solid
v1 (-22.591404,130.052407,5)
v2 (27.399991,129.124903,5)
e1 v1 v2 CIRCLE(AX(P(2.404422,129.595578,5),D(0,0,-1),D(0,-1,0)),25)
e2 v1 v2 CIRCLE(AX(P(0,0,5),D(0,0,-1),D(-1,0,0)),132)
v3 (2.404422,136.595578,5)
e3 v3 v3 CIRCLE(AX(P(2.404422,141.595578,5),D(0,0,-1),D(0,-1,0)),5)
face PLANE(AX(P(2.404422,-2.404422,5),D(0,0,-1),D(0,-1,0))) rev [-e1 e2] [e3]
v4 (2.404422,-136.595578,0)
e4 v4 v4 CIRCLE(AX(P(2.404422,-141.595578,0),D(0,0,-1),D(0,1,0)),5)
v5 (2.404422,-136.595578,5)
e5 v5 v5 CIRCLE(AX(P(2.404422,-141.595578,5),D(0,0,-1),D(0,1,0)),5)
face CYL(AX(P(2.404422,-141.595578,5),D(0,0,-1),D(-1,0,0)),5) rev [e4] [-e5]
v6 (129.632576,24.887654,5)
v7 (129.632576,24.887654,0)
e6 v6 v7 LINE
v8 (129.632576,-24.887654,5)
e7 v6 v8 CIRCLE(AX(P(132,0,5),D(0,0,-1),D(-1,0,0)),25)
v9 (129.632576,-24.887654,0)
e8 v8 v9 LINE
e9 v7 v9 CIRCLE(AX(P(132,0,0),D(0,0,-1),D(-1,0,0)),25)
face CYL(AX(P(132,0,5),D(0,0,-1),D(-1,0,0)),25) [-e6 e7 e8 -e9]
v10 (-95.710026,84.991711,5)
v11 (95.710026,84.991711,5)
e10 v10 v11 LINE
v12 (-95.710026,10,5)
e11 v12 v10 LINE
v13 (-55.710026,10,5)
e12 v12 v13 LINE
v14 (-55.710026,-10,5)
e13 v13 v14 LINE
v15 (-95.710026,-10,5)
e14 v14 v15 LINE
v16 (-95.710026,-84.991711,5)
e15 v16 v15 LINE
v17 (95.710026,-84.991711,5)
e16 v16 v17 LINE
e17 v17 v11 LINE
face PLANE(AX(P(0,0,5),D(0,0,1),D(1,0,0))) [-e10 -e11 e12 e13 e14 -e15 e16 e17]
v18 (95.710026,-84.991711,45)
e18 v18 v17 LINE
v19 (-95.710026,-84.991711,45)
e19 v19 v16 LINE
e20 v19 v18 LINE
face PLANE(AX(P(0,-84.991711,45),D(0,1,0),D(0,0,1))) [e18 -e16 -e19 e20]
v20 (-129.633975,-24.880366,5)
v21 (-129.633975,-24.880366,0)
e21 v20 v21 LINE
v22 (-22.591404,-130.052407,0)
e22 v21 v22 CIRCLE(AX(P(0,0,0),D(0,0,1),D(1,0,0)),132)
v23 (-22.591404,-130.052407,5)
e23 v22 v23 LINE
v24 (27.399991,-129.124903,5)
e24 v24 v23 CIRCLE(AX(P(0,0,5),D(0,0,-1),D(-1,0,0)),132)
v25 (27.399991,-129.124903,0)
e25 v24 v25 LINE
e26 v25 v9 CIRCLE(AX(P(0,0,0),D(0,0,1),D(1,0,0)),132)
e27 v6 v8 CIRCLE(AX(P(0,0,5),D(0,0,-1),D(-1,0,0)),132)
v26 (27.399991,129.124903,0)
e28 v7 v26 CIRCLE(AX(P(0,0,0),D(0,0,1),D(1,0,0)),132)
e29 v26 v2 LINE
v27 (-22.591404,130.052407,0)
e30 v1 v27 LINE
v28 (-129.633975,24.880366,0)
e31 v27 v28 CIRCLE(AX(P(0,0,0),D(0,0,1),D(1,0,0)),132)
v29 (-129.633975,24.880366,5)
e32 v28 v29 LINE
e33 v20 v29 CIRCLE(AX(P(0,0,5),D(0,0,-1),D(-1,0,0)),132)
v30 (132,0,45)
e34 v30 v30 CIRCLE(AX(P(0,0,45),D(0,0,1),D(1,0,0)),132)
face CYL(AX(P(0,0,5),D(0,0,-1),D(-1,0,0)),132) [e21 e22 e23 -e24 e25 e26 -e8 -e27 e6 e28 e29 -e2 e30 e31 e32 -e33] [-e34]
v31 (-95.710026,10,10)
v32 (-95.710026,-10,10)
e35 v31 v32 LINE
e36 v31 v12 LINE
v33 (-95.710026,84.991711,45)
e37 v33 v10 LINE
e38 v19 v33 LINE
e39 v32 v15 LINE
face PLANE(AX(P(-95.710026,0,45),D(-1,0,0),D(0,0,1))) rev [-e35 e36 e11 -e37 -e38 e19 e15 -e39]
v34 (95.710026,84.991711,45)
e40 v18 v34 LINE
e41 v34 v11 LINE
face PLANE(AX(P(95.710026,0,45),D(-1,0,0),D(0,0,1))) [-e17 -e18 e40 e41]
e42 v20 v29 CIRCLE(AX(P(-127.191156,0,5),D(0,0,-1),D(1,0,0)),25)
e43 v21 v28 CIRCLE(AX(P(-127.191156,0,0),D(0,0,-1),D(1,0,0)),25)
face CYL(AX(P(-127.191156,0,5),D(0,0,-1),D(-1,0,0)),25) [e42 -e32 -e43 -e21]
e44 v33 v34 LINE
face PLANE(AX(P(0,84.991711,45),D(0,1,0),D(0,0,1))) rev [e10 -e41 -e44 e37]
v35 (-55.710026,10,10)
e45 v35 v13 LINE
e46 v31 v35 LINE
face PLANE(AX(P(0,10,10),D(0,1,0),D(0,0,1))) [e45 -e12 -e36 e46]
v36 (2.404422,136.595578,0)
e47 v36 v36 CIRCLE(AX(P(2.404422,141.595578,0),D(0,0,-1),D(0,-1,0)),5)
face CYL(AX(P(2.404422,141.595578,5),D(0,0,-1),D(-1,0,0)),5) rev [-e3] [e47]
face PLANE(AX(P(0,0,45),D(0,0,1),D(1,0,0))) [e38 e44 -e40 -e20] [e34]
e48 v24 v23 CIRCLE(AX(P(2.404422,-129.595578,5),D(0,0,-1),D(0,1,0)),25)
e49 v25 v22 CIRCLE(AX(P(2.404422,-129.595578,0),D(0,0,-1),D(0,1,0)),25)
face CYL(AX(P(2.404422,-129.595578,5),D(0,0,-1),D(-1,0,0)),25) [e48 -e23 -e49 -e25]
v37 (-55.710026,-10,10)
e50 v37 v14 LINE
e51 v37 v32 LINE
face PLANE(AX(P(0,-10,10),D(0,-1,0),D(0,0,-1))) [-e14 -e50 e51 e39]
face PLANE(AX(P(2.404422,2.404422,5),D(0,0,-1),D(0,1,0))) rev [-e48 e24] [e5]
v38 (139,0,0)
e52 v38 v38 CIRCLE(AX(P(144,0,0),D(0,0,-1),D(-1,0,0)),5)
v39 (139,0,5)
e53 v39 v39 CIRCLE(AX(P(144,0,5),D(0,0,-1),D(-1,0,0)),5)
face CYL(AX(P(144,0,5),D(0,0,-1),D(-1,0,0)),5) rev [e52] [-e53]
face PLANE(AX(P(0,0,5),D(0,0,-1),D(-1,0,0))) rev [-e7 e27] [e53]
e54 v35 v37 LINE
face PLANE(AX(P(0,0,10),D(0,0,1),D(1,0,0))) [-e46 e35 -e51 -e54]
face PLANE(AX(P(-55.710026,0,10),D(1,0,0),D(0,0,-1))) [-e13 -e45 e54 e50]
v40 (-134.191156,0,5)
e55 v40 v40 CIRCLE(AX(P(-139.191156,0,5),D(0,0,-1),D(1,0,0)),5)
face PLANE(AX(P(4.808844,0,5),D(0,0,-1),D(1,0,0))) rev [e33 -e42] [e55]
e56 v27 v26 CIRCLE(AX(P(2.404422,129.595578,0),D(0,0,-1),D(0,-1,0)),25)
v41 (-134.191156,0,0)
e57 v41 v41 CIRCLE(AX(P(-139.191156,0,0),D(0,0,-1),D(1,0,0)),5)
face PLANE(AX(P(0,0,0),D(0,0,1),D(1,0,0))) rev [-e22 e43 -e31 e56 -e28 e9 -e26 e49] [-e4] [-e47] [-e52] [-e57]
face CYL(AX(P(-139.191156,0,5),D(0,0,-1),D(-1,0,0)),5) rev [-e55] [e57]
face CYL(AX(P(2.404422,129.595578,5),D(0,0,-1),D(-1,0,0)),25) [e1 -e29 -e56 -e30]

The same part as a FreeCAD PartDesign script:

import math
import FreeCAD as App
import Part
import Sketcher
from FreeCAD import Vector
Q = App.Units.Quantity

doc = App.newDocument("Part")
body = doc.addObject("PartDesign::Body", "Body")

# Sketch on XY plane
sketch1 = body.newObject("Sketcher::SketchObject", "Sketch")
sketch1.AttachmentSupport = (doc.getObject("XY_Plane"), [""])
sketch1.MapMode = "FlatFace"
sketch1.addGeometry(Part.Circle(Vector(0, 0, 0), Vector(0, 0, 1), 132), False)
sketch1.addConstraint([
    Sketcher.Constraint("Coincident", 0, 3, -1, 1),
    Sketcher.Constraint("Diameter", 0, Q("264 mm")),
])
pad1 = body.newObject("PartDesign::Pad", "Pad")
pad1.Profile = sketch1
pad1.Length = 5

# Sketch on XY plane
sketch2 = body.newObject("Sketcher::SketchObject", "Sketch001")
sketch2.AttachmentSupport = (doc.getObject("XY_Plane"), [""])
sketch2.MapMode = "FlatFace"
sketch2.AttachmentOffset = App.Placement(Vector(0, 0, 5), App.Rotation())
sketch2.addGeometry([
    Part.Circle(Vector(0, 0, 0), Vector(0, 0, 1), 132),
    Part.Circle(Vector(0, 0, 0), Vector(0, 0, 1), 128),
], False)
sketch2.addConstraint([
    Sketcher.Constraint("Coincident", 0, 3, -1, 1),
    Sketcher.Constraint("Coincident", 1, 3, -1, 1),
    Sketcher.Constraint("Diameter", 0, Q("264 mm")),
    Sketcher.Constraint("Diameter", 1, Q("256 mm")),
])
pad2 = body.newObject("PartDesign::Pad", "Pad001")
pad2.Profile = sketch2
pad2.Length = 40

# Sketch on XY plane
sketch3 = body.newObject("Sketcher::SketchObject", "Sketch002")
sketch3.AttachmentSupport = (doc.getObject("XY_Plane"), [""])
sketch3.MapMode = "FlatFace"
sketch3.AttachmentOffset = App.Placement(Vector(0, 0, 5), App.Rotation())
sketch3.addGeometry([
    Part.ArcOfCircle(Part.Circle(Vector(0, 0, 0), Vector(0, 0, 1), 128), math.radians(41.605481), math.radians(138.394519)),  # 0
    Part.LineSegment(Vector(-95.710026, 84.991711, 0), Vector(95.710026, 84.991711, 0)),  # 1
    Part.LineSegment(Vector(95.710026, 84.991711, 0), Vector(95.710026, -84.991711, 0)),  # 2
    Part.ArcOfCircle(Part.Circle(Vector(0, 0, 0), Vector(0, 0, 1), 128), math.radians(-41.605481), math.radians(0)),  # 3
    Part.ArcOfCircle(Part.Circle(Vector(0, 0, 0), Vector(0, 0, 1), 128), math.radians(0), math.radians(41.605481)),  # 4
    Part.LineSegment(Vector(95.710026, -84.991711, 0), Vector(-95.710026, -84.991711, 0)),  # 5
    Part.ArcOfCircle(Part.Circle(Vector(0, 0, 0), Vector(0, 0, 1), 128), math.radians(-138.394519), math.radians(-41.605481)),  # 6
    Part.ArcOfCircle(Part.Circle(Vector(0, 0, 0), Vector(0, 0, 1), 128), math.radians(138.394519), math.radians(221.605481)),  # 7
    Part.LineSegment(Vector(-95.710026, -84.991711, 0), Vector(-95.710026, 84.991711, 0)),  # 8
], False)
sketch3.addConstraint([
    Sketcher.Constraint("Coincident", 0, 1, 1, 2),
    Sketcher.Constraint("Coincident", 1, 1, 0, 2),
    Sketcher.Constraint("Coincident", 2, 2, 3, 1),
    Sketcher.Constraint("Tangent", 3, 2, 4, 1),
    Sketcher.Constraint("Coincident", 4, 2, 2, 1),
    Sketcher.Constraint("Coincident", 5, 1, 6, 2),
    Sketcher.Constraint("Coincident", 6, 1, 5, 2),
    Sketcher.Constraint("Coincident", 7, 1, 8, 2),
    Sketcher.Constraint("Coincident", 8, 1, 7, 2),
    Sketcher.Constraint("Horizontal", 1),
    Sketcher.Constraint("Vertical", 2),
    Sketcher.Constraint("Horizontal", 5),
    Sketcher.Constraint("Vertical", 8),
    Sketcher.Constraint("Coincident", 0, 3, -1, 1),
    Sketcher.Constraint("Coincident", 3, 3, -1, 1),
    Sketcher.Constraint("Coincident", 6, 3, -1, 1),
    Sketcher.Constraint("Coincident", 7, 3, -1, 1),
    Sketcher.Constraint("Coincident", 4, 2, 0, 1),
    Sketcher.Constraint("Coincident", 5, 1, 2, 2),
    Sketcher.Constraint("Coincident", 7, 1, 1, 1),
    Sketcher.Constraint("Equal", 0, 3),
    Sketcher.Constraint("PointOnObject", 3, 2, -1),
    Sketcher.Constraint("Radius", 0, Q("128 mm")),
    Sketcher.Constraint("DistanceY", 2, 2, 2, 1, Q("169.983422 mm")),
])
pad3 = body.newObject("PartDesign::Pad", "Pad002")
pad3.Profile = sketch3
pad3.Length = 40

# Sketch on XY plane
sketch4 = body.newObject("Sketcher::SketchObject", "Sketch003")
sketch4.AttachmentSupport = (doc.getObject("XY_Plane"), [""])
sketch4.MapMode = "FlatFace"
sketch4.AttachmentOffset = App.Placement(Vector(0, 0, 5), App.Rotation())
sketch4.addGeometry([
    Part.LineSegment(Vector(-70, 10, 0), Vector(-70, -10, 0)),
    Part.LineSegment(Vector(-70, -10, 0), Vector(-30, -10, 0)),
    Part.LineSegment(Vector(-30, -10, 0), Vector(-30, 10, 0)),
    Part.LineSegment(Vector(-30, 10, 0), Vector(-70, 10, 0)),
], False)
sketch4.addConstraint([
    Sketcher.Constraint("Coincident", 0, 2, 1, 1),
    Sketcher.Constraint("Coincident", 1, 2, 2, 1),
    Sketcher.Constraint("Coincident", 2, 2, 3, 1),
    Sketcher.Constraint("Coincident", 3, 2, 0, 1),
    Sketcher.Constraint("Vertical", 0),
    Sketcher.Constraint("Horizontal", 1),
    Sketcher.Constraint("Vertical", 2),
    Sketcher.Constraint("Horizontal", 3),
    Sketcher.Constraint("DistanceX", 1, 1, 1, 2, Q("40 mm")),
    Sketcher.Constraint("DistanceY", 0, 2, 0, 1, Q("20 mm")),
    Sketcher.Constraint("DistanceX", 0, 2, -1, 1, Q("70 mm")),
    Sketcher.Constraint("DistanceY", 0, 2, -1, 1, Q("10 mm")),
])
pad4 = body.newObject("PartDesign::Pad", "Pad003")
pad4.Profile = sketch4
pad4.Length = 5

# Sketch on XY plane
sketch5 = body.newObject("Sketcher::SketchObject", "Sketch004")
sketch5.AttachmentSupport = (doc.getObject("XY_Plane"), [""])
sketch5.MapMode = "FlatFace"
sketch5.AttachmentOffset = App.Placement(Vector(0, 0, 10), App.Rotation())
sketch5.addGeometry([
    Part.LineSegment(Vector(-70, 10, 0), Vector(-70, -10, 0)),
    Part.LineSegment(Vector(-70, -10, 0), Vector(-30, -10, 0)),
    Part.LineSegment(Vector(-30, -10, 0), Vector(-30, 10, 0)),
    Part.LineSegment(Vector(-30, 10, 0), Vector(-70, 10, 0)),
], False)
sketch5.addConstraint([
    Sketcher.Constraint("Coincident", 0, 2, 1, 1),
    Sketcher.Constraint("Coincident", 1, 2, 2, 1),
    Sketcher.Constraint("Coincident", 2, 2, 3, 1),
    Sketcher.Constraint("Coincident", 3, 2, 0, 1),
    Sketcher.Constraint("Vertical", 0),
    Sketcher.Constraint("Horizontal", 1),
    Sketcher.Constraint("Vertical", 2),
    Sketcher.Constraint("Horizontal", 3),
    Sketcher.Constraint("DistanceX", 1, 1, 1, 2, Q("40 mm")),
    Sketcher.Constraint("DistanceY", 0, 2, 0, 1, Q("20 mm")),
    Sketcher.Constraint("DistanceX", 0, 2, -1, 1, Q("70 mm")),
    Sketcher.Constraint("DistanceY", 0, 2, -1, 1, Q("10 mm")),
])
pocket1 = body.newObject("PartDesign::Pocket", "Pocket")
pocket1.Profile = sketch5
pocket1.Length = 5

# Sketch on XY plane
sketch6 = body.newObject("Sketcher::SketchObject", "Sketch005")
sketch6.AttachmentSupport = (doc.getObject("XY_Plane"), [""])
sketch6.MapMode = "FlatFace"
sketch6.AttachmentOffset = App.Placement(Vector(0, 0, 5), App.Rotation())
sketch6.addGeometry([
    Part.LineSegment(Vector(-95.710026, -10, 0), Vector(-55.710026, -10, 0)),
    Part.LineSegment(Vector(-55.710026, -10, 0), Vector(-55.710026, 10, 0)),
    Part.LineSegment(Vector(-55.710026, 10, 0), Vector(-95.710026, 10, 0)),
    Part.LineSegment(Vector(-95.710026, 10, 0), Vector(-95.710026, -10, 0)),
], False)
sketch6.addConstraint([
    Sketcher.Constraint("Coincident", 0, 2, 1, 1),
    Sketcher.Constraint("Coincident", 1, 2, 2, 1),
    Sketcher.Constraint("Coincident", 2, 2, 3, 1),
    Sketcher.Constraint("Coincident", 3, 2, 0, 1),
    Sketcher.Constraint("Horizontal", 0),
    Sketcher.Constraint("Vertical", 1),
    Sketcher.Constraint("Horizontal", 2),
    Sketcher.Constraint("Vertical", 3),
    Sketcher.Constraint("DistanceX", 0, 1, 0, 2, Q("40 mm")),
    Sketcher.Constraint("DistanceY", 1, 1, 1, 2, Q("20 mm")),
    Sketcher.Constraint("DistanceY", 0, 2, -1, 1, Q("10 mm")),
    Sketcher.Constraint("DistanceX", 0, 2, -1, 1, Q("55.710026 mm")),
])
pad5 = body.newObject("PartDesign::Pad", "Pad004")
pad5.Profile = sketch6
pad5.Length = 5

# Sketch on XY plane
sketch7 = body.newObject("Sketcher::SketchObject", "Sketch006")
sketch7.AttachmentSupport = (doc.getObject("XY_Plane"), [""])
sketch7.MapMode = "FlatFace"
sketch7.addGeometry([
    Part.ArcOfCircle(Part.Circle(Vector(0, 0, 0), Vector(0, 0, 1), 132), math.radians(-10.867758), math.radians(10.867758)),
    Part.ArcOfCircle(Part.Circle(Vector(132, 0, 0), Vector(0, 0, 1), 25), math.radians(-95.433879), math.radians(95.433879)),
    Part.Circle(Vector(144, 0, 0), Vector(0, 0, 1), 5),
], False)
sketch7.addConstraint([
    Sketcher.Constraint("Coincident", 0, 1, 1, 1),
    Sketcher.Constraint("Coincident", 1, 2, 0, 2),
    Sketcher.Constraint("Coincident", 0, 3, -1, 1),
    Sketcher.Constraint("PointOnObject", 1, 3, -1),
    Sketcher.Constraint("PointOnObject", 2, 3, -1),
    Sketcher.Constraint("Diameter", 2, Q("10 mm")),
    Sketcher.Constraint("Radius", 0, Q("132 mm")),
    Sketcher.Constraint("Radius", 1, Q("25 mm")),
    Sketcher.Constraint("DistanceX", -1, 1, 1, 3, Q("132 mm")),
    Sketcher.Constraint("DistanceX", -1, 1, 2, 3, Q("144 mm")),
])
pad6 = body.newObject("PartDesign::Pad", "Pad005")
pad6.Profile = sketch7
pad6.Length = 5
doc.recompute()

datumline = body.newObject("PartDesign::Line", "DatumLine")
datumline.Placement = App.Placement(Vector(2.404422, 0, 0), App.Rotation(Vector(0, 0, 1), Vector(0, 0, 1)))
polarpattern = body.newObject("PartDesign::PolarPattern", "PolarPattern")
polarpattern.Originals = [pad6]
polarpattern.Axis = (datumline, [""])
polarpattern.Angle = 360
polarpattern.Occurrences = 4
body.Tip = polarpattern

doc.recompute()
